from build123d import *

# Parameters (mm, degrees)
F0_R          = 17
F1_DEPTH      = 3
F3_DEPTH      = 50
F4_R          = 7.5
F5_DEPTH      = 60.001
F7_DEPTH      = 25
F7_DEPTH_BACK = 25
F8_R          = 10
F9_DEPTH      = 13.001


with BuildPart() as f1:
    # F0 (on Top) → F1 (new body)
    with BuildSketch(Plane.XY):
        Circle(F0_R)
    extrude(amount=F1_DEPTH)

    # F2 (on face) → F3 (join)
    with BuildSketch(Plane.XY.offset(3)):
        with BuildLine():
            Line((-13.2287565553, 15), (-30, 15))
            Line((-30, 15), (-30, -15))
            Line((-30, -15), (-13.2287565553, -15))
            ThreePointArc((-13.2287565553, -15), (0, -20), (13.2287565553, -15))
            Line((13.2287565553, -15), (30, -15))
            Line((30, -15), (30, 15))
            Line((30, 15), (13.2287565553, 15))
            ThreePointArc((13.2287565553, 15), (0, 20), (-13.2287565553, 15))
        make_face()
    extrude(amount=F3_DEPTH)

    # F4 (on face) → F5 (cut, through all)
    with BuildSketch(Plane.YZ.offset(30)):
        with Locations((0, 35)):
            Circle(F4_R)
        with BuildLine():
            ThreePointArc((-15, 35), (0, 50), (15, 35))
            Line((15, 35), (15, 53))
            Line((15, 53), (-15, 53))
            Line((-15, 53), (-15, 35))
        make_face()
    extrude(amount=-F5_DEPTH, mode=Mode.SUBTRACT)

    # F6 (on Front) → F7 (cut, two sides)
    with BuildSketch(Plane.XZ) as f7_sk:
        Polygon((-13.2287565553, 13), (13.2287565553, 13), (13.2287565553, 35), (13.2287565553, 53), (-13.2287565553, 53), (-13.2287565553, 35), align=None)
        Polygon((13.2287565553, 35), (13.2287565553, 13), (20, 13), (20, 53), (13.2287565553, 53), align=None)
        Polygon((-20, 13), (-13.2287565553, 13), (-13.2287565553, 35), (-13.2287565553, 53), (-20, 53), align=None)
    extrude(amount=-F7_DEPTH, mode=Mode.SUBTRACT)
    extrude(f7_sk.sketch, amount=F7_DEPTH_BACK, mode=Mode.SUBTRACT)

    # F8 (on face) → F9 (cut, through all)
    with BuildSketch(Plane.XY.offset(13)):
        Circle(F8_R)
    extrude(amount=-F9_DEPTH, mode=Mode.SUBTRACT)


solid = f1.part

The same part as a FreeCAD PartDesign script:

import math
import FreeCAD as App
import Part
import Sketcher
Q = App.Units.Quantity


def add_polygon(sketch, points):
    """Adds a closed chain of lines whose ends are joined by coincident constraints."""
    first, n = sketch.GeometryCount, len(points)
    for a, b in zip(points, points[1:] + points[:1]):
        sketch.addGeometry(Part.LineSegment(App.Vector(*a, 0), App.Vector(*b, 0)), False)
    for i in range(n):
        sketch.addConstraint(Sketcher.Constraint("Coincident", first + i, 2, first + (i + 1) % n, 1))

doc = App.newDocument("Part")
params = doc.addObject("Spreadsheet::Sheet", "Params")
for row, (alias, value) in enumerate([
    ("sketch1_diameter", "34 mm"),
    ("pad1_length", "3 mm"),
    ("sketch2_radius", "20 mm"),
    ("sketch2_height", "30 mm"),
    ("pad2_length", "50 mm"),
    ("sketch3_diameter", "15 mm"),
    ("sketch3_radius", "15 mm"),
    ("sketch3_height", "18 mm"),
    ("sketch4_width", "40 mm"),
    ("sketch5_diameter", "20 mm"),
], start=1):
    params.set(f"A{row}", alias)
    params.set(f"B{row}", "=" + value)
    params.setAlias(f"B{row}", alias)

body = doc.addObject("PartDesign::Body", "Body")

# Sketch on XY plane
sketch1 = body.newObject("Sketcher::SketchObject", "Sketch")
sketch1.AttachmentSupport = (doc.getObject("XY_Plane"), [""])
sketch1.MapMode = "FlatFace"
sketch1.addGeometry(Part.Circle(App.Vector(0, 0, 0), App.Vector(0, 0, 1), 17), False)
sketch1.addConstraint(Sketcher.Constraint("Coincident", 0, 3, -1, 1))
sketch1.addConstraint(Sketcher.Constraint("Diameter", 0, Q("34 mm")))
sketch1.setExpression("Constraints[1]", "Params.sketch1_diameter")
pad1 = body.newObject("PartDesign::Pad", "Pad")
pad1.Profile = sketch1
pad1.setExpression("Length", "Params.pad1_length")

# Sketch on XY plane
sketch2 = body.newObject("Sketcher::SketchObject", "Sketch001")
sketch2.AttachmentSupport = (doc.getObject("XY_Plane"), [""])
sketch2.MapMode = "FlatFace"
sketch2.AttachmentOffset = App.Placement(App.Vector(0, 0, 3), App.Rotation())
sketch2.addGeometry(Part.LineSegment(App.Vector(-13, 15, 0), App.Vector(-30, 15, 0)), False)
sketch2.addGeometry(Part.LineSegment(App.Vector(-30, 15, 0), App.Vector(-30, -15, 0)), False)
sketch2.addGeometry(Part.LineSegment(App.Vector(-30, -15, 0), App.Vector(-13, -15, 0)), False)
sketch2.addGeometry(Part.ArcOfCircle(Part.Circle(App.Vector(0, 0, 0), App.Vector(0, 0, 1), 20), math.radians(-131), math.radians(-49)), False)
sketch2.addGeometry(Part.LineSegment(App.Vector(13, -15, 0), App.Vector(30, -15, 0)), False)
sketch2.addGeometry(Part.LineSegment(App.Vector(30, -15, 0), App.Vector(30, 15, 0)), False)
sketch2.addGeometry(Part.LineSegment(App.Vector(30, 15, 0), App.Vector(13, 15, 0)), False)
sketch2.addGeometry(Part.ArcOfCircle(Part.Circle(App.Vector(0, 0, 0), App.Vector(0, 0, 1), 20), math.radians(49), math.radians(131)), False)
sketch2.addConstraint(Sketcher.Constraint("Coincident", 0, 2, 1, 1))
sketch2.addConstraint(Sketcher.Constraint("Coincident", 1, 2, 2, 1))
sketch2.addConstraint(Sketcher.Constraint("Coincident", 2, 2, 3, 1))
sketch2.addConstraint(Sketcher.Constraint("Coincident", 3, 2, 4, 1))
sketch2.addConstraint(Sketcher.Constraint("Coincident", 4, 2, 5, 1))
sketch2.addConstraint(Sketcher.Constraint("Coincident", 5, 2, 6, 1))
sketch2.addConstraint(Sketcher.Constraint("Coincident", 6, 2, 7, 1))
sketch2.addConstraint(Sketcher.Constraint("Coincident", 7, 2, 0, 1))
sketch2.addConstraint(Sketcher.Constraint("Horizontal", 0))
sketch2.addConstraint(Sketcher.Constraint("Vertical", 1))
sketch2.addConstraint(Sketcher.Constraint("Horizontal", 2))
sketch2.addConstraint(Sketcher.Constraint("Horizontal", 4))
sketch2.addConstraint(Sketcher.Constraint("Vertical", 5))
sketch2.addConstraint(Sketcher.Constraint("Horizontal", 6))
sketch2.addConstraint(Sketcher.Constraint("Coincident", 3, 3, -1, 1))
sketch2.addConstraint(Sketcher.Constraint("Coincident", 7, 3, -1, 1))
sketch2.addConstraint(Sketcher.Constraint("Equal", 3, 7))
sketch2.addConstraint(Sketcher.Constraint("Symmetric", 0, 2, 4, 2, -1, 1))
sketch2.addConstraint(Sketcher.Constraint("Horizontal", 2, 2, 3, 2))
sketch2.addConstraint(Sketcher.Constraint("Horizontal", 0, 2, 5, 2))
sketch2.addConstraint(Sketcher.Constraint("Radius", 3, Q("20 mm")))
sketch2.addConstraint(Sketcher.Constraint("DistanceY", 1, 2, 1, 1, Q("30 mm")))
sketch2.addConstraint(Sketcher.Constraint("DistanceX", 0, 2, -1, 1, Q("30 mm")))
sketch2.setExpression("Constraints[20]", "Params.sketch2_radius")
sketch2.setExpression("Constraints[21]", "Params.sketch2_height")
pad2 = body.newObject("PartDesign::Pad", "Pad001")
pad2.Profile = sketch2
pad2.setExpression("Length", "Params.pad2_length")

# Sketch on YZ plane
sketch3 = body.newObject("Sketcher::SketchObject", "Sketch002")
sketch3.AttachmentSupport = (doc.getObject("YZ_Plane"), [""])
sketch3.MapMode = "FlatFace"
sketch3.AttachmentOffset = App.Placement(App.Vector(0, 0, 30), App.Rotation())
sketch3.addGeometry(Part.Circle(App.Vector(0, 35, 0), App.Vector(0, 0, 1), 8), False)
sketch3.addGeometry(Part.ArcOfCircle(Part.Circle(App.Vector(0, 35, 0), App.Vector(0, 0, 1), 15), math.radians(0), math.radians(180)), False)
sketch3.addGeometry(Part.LineSegment(App.Vector(15, 35, 0), App.Vector(15, 53, 0)), False)
sketch3.addGeometry(Part.LineSegment(App.Vector(15, 53, 0), App.Vector(-15, 53, 0)), False)
sketch3.addGeometry(Part.LineSegment(App.Vector(-15, 53, 0), App.Vector(-15, 35, 0)), False)
sketch3.addConstraint(Sketcher.Constraint("Tangent", 1, 1, 2, 1))
sketch3.addConstraint(Sketcher.Constraint("Coincident", 2, 2, 3, 1))
sketch3.addConstraint(Sketcher.Constraint("Coincident", 3, 2, 4, 1))
sketch3.addConstraint(Sketcher.Constraint("Tangent", 4, 2, 1, 2))
sketch3.addConstraint(Sketcher.Constraint("Vertical", 2))
sketch3.addConstraint(Sketcher.Constraint("Horizontal", 3))
sketch3.addConstraint(Sketcher.Constraint("Vertical", 4))
sketch3.addConstraint(Sketcher.Constraint("Coincident", 1, 3, 0, 3))
sketch3.addConstraint(Sketcher.Constraint("PointOnObject", 0, 3, -2))
sketch3.addConstraint(Sketcher.Constraint("Diameter", 0, Q("15 mm")))
sketch3.addConstraint(Sketcher.Constraint("Radius", 1, Q("15 mm")))
sketch3.addConstraint(Sketcher.Constraint("DistanceY", 2, 1, 2, 2, Q("18 mm")))
sketch3.addConstraint(Sketcher.Constraint("DistanceY", -1, 1, 0, 3, Q("35 mm")))
sketch3.setExpression("Constraints[9]", "Params.sketch3_diameter")
sketch3.setExpression("Constraints[10]", "Params.sketch3_radius")
sketch3.setExpression("Constraints[11]", "Params.sketch3_height")
pocket1 = body.newObject("PartDesign::Pocket", "Pocket")
pocket1.Profile = sketch3
pocket1.Type = "ThroughAll"

# Sketch on XZ plane
sketch4 = body.newObject("Sketcher::SketchObject", "Sketch003")
sketch4.AttachmentSupport = (doc.getObject("XZ_Plane"), [""])
sketch4.MapMode = "FlatFace"
add_polygon(sketch4, [(20, 13), (20, 53), (-20, 53), (-20, 13)])  # lines 0-3
sketch4.addConstraint(Sketcher.Constraint("Vertical", 0))
sketch4.addConstraint(Sketcher.Constraint("Horizontal", 1))
sketch4.addConstraint(Sketcher.Constraint("Vertical", 2))
sketch4.addConstraint(Sketcher.Constraint("Horizontal", 3))
sketch4.addConstraint(Sketcher.Constraint("Equal", 3, 0))
sketch4.addConstraint(Sketcher.Constraint("DistanceX", 1, 2, 1, 1, Q("40 mm")))
sketch4.addConstraint(Sketcher.Constraint("DistanceX", -1, 1, 0, 2, Q("20 mm")))
sketch4.addConstraint(Sketcher.Constraint("DistanceY", -1, 1, 0, 2, Q("53 mm")))
sketch4.setExpression("Constraints[9]", "Params.sketch4_width")
pocket2 = body.newObject("PartDesign::Pocket", "Pocket001")
pocket2.Profile = sketch4
pocket2.Type = "ThroughAll"
pocket2.Midplane = True

# Sketch on XY plane
sketch5 = body.newObject("Sketcher::SketchObject", "Sketch004")
sketch5.AttachmentSupport = (doc.getObject("XY_Plane"), [""])
sketch5.MapMode = "FlatFace"
sketch5.AttachmentOffset = App.Placement(App.Vector(0, 0, 13), App.Rotation())
sketch5.addGeometry(Part.Circle(App.Vector(0, 0, 0), App.Vector(0, 0, 1), 10), False)
sketch5.addConstraint(Sketcher.Constraint("Coincident", 0, 3, -1, 1))
sketch5.addConstraint(Sketcher.Constraint("Diameter", 0, Q("20 mm")))
sketch5.setExpression("Constraints[1]", "Params.sketch5_diameter")
pocket3 = body.newObject("PartDesign::Pocket", "Pocket002")
pocket3.Profile = sketch5
pocket3.Type = "ThroughAll"

doc.recompute()
